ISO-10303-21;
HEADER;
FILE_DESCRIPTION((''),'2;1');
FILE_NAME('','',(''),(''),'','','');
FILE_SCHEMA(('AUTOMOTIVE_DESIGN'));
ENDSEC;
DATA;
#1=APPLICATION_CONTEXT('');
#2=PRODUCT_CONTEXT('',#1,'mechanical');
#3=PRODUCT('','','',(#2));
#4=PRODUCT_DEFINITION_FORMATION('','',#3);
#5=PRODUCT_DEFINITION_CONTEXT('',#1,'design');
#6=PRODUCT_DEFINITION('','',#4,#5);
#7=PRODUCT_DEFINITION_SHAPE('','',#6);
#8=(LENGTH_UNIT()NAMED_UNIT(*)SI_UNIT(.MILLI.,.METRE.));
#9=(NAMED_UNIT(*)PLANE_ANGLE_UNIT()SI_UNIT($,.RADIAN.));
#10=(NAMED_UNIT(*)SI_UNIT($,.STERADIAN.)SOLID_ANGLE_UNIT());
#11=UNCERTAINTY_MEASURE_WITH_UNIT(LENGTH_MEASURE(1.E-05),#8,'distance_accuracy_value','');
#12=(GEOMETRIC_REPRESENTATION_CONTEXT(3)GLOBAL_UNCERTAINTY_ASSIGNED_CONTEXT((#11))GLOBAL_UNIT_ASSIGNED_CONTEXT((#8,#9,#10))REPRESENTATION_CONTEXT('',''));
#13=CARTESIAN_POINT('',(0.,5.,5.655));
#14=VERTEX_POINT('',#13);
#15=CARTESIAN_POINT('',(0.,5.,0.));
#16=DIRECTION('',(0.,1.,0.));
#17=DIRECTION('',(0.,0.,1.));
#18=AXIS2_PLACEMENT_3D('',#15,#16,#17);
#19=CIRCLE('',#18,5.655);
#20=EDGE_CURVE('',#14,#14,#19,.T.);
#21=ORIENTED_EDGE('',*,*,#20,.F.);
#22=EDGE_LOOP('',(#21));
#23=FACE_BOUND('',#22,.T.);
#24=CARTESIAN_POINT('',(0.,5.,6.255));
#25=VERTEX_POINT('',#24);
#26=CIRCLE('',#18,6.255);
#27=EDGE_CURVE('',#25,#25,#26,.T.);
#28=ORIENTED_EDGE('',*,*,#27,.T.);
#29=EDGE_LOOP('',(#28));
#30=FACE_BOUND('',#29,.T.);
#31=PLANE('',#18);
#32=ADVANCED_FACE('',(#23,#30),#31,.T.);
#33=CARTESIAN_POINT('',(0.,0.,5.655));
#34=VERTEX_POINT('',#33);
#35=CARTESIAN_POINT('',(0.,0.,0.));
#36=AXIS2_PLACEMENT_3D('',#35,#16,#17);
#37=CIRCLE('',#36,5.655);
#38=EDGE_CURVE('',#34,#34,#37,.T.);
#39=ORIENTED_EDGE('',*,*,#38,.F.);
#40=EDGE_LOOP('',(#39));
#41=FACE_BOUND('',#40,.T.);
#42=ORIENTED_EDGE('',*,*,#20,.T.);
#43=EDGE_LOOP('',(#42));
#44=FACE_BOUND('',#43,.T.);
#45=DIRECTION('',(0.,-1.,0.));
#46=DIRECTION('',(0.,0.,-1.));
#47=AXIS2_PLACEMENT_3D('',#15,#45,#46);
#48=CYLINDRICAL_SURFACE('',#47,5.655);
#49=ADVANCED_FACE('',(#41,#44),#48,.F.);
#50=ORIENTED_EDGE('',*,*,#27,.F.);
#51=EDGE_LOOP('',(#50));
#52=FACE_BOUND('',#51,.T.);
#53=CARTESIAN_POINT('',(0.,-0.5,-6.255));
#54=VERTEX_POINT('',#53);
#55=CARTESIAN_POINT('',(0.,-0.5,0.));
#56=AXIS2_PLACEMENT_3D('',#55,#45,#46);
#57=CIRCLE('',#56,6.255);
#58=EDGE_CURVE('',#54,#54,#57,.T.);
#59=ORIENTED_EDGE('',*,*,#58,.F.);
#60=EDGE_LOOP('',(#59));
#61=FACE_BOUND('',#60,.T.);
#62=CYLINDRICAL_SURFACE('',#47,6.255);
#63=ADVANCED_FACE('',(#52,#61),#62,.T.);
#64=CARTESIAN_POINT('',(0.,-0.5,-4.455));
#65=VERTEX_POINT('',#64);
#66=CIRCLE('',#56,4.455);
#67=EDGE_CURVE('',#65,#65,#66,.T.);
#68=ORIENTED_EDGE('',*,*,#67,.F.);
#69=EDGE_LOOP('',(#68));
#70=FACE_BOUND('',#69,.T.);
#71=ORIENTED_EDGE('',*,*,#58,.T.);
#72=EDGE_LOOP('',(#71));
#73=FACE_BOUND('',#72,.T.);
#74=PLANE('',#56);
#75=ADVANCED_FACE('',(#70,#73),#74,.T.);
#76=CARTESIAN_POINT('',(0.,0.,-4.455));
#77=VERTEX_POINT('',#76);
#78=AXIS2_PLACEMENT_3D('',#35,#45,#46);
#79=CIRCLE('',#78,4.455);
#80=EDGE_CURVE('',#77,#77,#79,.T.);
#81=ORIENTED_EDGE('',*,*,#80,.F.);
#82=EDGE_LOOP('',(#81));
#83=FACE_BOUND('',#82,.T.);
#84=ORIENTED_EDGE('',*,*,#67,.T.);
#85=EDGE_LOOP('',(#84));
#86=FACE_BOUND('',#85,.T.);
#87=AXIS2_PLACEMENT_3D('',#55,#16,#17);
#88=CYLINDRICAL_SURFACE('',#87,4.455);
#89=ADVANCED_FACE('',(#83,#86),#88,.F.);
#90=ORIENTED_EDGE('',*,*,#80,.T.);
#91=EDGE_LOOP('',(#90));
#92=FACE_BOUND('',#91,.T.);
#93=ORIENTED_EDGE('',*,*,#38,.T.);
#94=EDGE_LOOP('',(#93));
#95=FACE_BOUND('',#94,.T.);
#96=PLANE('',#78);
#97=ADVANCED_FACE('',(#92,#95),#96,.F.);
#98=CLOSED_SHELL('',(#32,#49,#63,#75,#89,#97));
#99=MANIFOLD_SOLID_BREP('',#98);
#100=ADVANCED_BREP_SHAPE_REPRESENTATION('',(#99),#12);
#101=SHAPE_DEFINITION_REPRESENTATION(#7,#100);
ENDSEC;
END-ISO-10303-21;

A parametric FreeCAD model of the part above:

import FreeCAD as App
import Part
import Sketcher
from FreeCAD import Vector
Q = App.Units.Quantity

doc = App.newDocument("Part")
body = doc.addObject("PartDesign::Body", "Body")

# Sketch on XZ plane
sketch1 = body.newObject("Sketcher::SketchObject", "Sketch")
sketch1.AttachmentSupport = (doc.getObject("XZ_Plane"), [""])
sketch1.MapMode = "FlatFace"
sketch1.addGeometry([
    Part.Circle(Vector(0, 0, 0), Vector(0, 0, 1), 6.255),
    Part.Circle(Vector(0, 0, 0), Vector(0, 0, 1), 5.655),
], False)
sketch1.addConstraint([
    Sketcher.Constraint("Coincident", 0, 3, -1, 1),
    Sketcher.Constraint("Coincident", 1, 3, -1, 1),
    Sketcher.Constraint("Diameter", 0, Q("12.51 mm")),
    Sketcher.Constraint("Diameter", 1, Q("11.31 mm")),
])
pad1 = body.newObject("PartDesign::Pad", "Pad")
pad1.Profile = sketch1
pad1.Length = 5
pad1.Reversed = True

# Sketch on XZ plane
sketch2 = body.newObject("Sketcher::SketchObject", "Sketch001")
sketch2.AttachmentSupport = (doc.getObject("XZ_Plane"), [""])
sketch2.MapMode = "FlatFace"
sketch2.AttachmentOffset = App.Placement(Vector(0, 0, 0.5), App.Rotation())
sketch2.addGeometry([
    Part.Circle(Vector(0, 0, 0), Vector(0, 0, 1), 6.255),
    Part.Circle(Vector(0, 0, 0), Vector(0, 0, 1), 4.455),
], False)
sketch2.addConstraint([
    Sketcher.Constraint("Coincident", 0, 3, -1, 1),
    Sketcher.Constraint("Coincident", 1, 3, -1, 1),
    Sketcher.Constraint("Diameter", 0, Q("12.51 mm")),
    Sketcher.Constraint("Diameter", 1, Q("8.91 mm")),
])
pad2 = body.newObject("PartDesign::Pad", "Pad001")
pad2.Profile = sketch2
pad2.Length = 0.5
pad2.Reversed = True

doc.recompute()
